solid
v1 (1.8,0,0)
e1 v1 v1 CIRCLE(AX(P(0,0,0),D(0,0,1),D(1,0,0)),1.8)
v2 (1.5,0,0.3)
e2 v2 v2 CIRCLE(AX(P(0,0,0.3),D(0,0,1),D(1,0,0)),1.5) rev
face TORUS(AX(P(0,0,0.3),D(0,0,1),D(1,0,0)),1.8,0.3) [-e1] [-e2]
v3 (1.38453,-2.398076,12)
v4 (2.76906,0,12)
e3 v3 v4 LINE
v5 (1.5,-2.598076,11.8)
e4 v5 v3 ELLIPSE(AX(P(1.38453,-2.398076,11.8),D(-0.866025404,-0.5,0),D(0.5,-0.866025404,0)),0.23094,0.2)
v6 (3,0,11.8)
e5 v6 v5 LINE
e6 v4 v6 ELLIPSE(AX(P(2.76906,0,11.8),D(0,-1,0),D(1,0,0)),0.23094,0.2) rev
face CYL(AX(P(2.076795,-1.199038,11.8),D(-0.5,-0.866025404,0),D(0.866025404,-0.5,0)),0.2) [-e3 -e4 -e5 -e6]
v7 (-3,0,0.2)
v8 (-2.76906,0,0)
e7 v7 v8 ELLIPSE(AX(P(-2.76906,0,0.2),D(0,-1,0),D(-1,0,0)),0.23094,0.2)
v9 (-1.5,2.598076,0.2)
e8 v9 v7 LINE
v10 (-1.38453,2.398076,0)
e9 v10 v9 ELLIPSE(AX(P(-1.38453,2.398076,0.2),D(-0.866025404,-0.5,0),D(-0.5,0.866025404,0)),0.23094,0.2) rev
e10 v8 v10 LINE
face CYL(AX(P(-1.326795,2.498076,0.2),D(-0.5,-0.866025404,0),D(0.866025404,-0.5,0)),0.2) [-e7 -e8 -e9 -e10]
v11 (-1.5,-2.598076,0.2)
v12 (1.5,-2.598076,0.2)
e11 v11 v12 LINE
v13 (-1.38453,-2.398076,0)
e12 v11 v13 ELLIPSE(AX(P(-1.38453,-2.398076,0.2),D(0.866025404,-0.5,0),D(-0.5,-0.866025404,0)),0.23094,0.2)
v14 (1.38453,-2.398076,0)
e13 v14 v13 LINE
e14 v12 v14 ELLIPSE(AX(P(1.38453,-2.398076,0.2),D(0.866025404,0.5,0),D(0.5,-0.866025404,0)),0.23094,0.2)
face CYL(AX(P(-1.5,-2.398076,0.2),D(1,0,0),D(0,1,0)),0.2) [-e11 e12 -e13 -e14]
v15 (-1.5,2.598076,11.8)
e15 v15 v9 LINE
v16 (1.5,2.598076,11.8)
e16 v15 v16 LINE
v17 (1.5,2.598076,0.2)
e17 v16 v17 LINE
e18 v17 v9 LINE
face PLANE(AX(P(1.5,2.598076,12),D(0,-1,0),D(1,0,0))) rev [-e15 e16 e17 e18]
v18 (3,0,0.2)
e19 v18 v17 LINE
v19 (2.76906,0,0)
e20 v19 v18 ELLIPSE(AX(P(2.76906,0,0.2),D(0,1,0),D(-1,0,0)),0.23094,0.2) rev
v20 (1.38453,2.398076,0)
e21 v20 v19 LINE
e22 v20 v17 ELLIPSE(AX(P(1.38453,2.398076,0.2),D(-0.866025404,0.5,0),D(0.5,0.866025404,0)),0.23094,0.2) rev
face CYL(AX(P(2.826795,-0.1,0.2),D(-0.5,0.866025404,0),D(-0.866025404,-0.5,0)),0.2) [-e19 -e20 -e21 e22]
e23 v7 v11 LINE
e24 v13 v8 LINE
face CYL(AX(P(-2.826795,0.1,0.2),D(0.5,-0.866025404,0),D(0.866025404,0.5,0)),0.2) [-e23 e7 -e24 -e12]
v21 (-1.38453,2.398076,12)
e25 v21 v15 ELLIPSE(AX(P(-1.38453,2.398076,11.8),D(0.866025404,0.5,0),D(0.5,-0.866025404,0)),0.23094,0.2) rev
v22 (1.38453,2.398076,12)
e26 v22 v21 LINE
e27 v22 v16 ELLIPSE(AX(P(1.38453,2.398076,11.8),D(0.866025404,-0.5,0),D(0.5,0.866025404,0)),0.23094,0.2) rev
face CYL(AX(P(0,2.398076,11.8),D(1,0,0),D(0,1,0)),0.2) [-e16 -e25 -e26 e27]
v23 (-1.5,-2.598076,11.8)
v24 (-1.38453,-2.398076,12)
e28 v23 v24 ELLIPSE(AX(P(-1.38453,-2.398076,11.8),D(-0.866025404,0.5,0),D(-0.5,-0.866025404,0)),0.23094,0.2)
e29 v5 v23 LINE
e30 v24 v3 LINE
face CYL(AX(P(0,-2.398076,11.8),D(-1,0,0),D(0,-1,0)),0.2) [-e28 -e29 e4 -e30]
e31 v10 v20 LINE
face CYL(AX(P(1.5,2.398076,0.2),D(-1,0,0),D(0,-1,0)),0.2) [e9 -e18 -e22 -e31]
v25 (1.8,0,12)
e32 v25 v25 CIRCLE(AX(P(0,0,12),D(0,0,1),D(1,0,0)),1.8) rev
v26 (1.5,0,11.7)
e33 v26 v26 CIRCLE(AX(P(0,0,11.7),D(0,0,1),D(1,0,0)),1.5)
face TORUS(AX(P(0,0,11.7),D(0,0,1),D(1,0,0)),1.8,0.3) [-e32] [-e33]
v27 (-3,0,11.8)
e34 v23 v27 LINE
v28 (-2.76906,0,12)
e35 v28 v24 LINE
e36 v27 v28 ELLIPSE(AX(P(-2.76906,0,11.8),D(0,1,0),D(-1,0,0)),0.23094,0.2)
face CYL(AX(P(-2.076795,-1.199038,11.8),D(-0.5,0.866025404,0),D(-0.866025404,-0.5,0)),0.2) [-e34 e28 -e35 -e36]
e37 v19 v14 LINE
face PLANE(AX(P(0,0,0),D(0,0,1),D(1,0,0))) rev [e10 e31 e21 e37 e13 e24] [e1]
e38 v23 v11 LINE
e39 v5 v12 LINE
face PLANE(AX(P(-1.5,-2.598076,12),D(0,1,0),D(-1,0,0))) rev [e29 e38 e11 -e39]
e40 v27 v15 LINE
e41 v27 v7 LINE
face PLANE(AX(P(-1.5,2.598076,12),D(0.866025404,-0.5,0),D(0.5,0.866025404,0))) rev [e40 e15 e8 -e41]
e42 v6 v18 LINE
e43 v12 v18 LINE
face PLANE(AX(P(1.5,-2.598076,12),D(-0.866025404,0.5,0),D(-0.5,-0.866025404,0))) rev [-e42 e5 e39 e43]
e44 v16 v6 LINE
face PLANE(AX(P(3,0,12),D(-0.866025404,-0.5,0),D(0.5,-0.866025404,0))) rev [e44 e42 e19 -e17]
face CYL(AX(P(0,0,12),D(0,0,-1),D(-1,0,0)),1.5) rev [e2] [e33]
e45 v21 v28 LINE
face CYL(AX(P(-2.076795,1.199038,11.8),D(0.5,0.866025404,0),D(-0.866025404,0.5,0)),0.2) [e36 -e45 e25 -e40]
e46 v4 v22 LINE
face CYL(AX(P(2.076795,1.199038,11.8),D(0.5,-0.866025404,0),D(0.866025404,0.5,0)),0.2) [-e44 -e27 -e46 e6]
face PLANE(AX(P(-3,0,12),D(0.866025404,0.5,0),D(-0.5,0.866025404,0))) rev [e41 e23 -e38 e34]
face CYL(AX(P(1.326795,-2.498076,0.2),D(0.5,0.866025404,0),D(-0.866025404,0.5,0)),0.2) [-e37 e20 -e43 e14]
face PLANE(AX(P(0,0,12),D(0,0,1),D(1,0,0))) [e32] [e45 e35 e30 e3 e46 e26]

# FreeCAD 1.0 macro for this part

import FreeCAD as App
import Part
import Sketcher
from FreeCAD import Vector
Q = App.Units.Quantity


def edges_at(feature, points):
    """Names of the edges that pass closest to the given points."""
    edges = feature.Shape.Edges
    near = lambda p: min(range(len(edges)), key=lambda i: edges[i].distToShape(Part.Vertex(*p))[0])
    return sorted({f"Edge{near(p) + 1}" for p in points})

doc = App.newDocument("Part")
params = doc.addObject("Spreadsheet::Sheet", "Params")
for row, (alias, value) in enumerate([
    ("sketch1_diameter", "3 mm"),
    ("sketch1_width", "3 mm"),
    ("sketch1_length", "3 mm"),
    ("pad1_length", "12 mm"),
    ("fillet_radius", "0.3 mm"),
    ("fillet2_radius", "0.2 mm"),
], start=1):
    params.set(f"A{row}", alias)
    params.set(f"B{row}", "=" + value)
    params.setAlias(f"B{row}", alias)

body = doc.addObject("PartDesign::Body", "Body")

# Sketch on XY plane
sketch1 = doc.addObject("Sketcher::SketchObject", "Sketch")
body.addObject(sketch1)
sketch1.AttachmentSupport = (doc.XY_Plane, [""])
sketch1.MapMode = "FlatFace"
sketch1.addGeometry(Part.LineSegment(Vector(3, 0, 0), Vector(1.5, 2.6, 0)), False)
sketch1.addGeometry(Part.LineSegment(Vector(1.5, 2.6, 0), Vector(-1.5, 2.6, 0)), False)
sketch1.addGeometry(Part.LineSegment(Vector(-1.5, 2.6, 0), Vector(-3, 0, 0)), False)
sketch1.addGeometry(Part.LineSegment(Vector(-3, 0, 0), Vector(-1.5, -2.6, 0)), False)
sketch1.addGeometry(Part.LineSegment(Vector(-1.5, -2.6, 0), Vector(1.5, -2.6, 0)), False)
sketch1.addGeometry(Part.LineSegment(Vector(1.5, -2.6, 0), Vector(3, 0, 0)), False)
sketch1.addGeometry(Part.Circle(Vector(0, 0, 0), Vector(0, 0, 1), 1.5), False)
sketch1.addConstraint(Sketcher.Constraint("Coincident", 0, 2, 1, 1))
sketch1.addConstraint(Sketcher.Constraint("Coincident", 1, 2, 2, 1))
sketch1.addConstraint(Sketcher.Constraint("Coincident", 2, 2, 3, 1))
sketch1.addConstraint(Sketcher.Constraint("Coincident", 3, 2, 4, 1))
sketch1.addConstraint(Sketcher.Constraint("Coincident", 4, 2, 5, 1))
sketch1.addConstraint(Sketcher.Constraint("Coincident", 5, 2, 0, 1))
sketch1.addConstraint(Sketcher.Constraint("Horizontal", 1))
sketch1.addConstraint(Sketcher.Constraint("Horizontal", 4))
sketch1.addConstraint(Sketcher.Constraint("Coincident", 6, 3, -1, 1))
sketch1.addConstraint(Sketcher.Constraint("Symmetric", 0, 2, 3, 2, -1, 1))
sketch1.addConstraint(Sketcher.Constraint("Symmetric", 2, 2, 5, 2, -1, 1))
sketch1.addConstraint(Sketcher.Constraint("PointOnObject", 2, 2, -1))
sketch1.addConstraint(Sketcher.Constraint("Parallel", 2, 5))
sketch1.addConstraint(Sketcher.Constraint("Vertical", 1, 2, 3, 2))
sketch1.addConstraint(Sketcher.Constraint("Diameter", 6, Q("3 mm")))
sketch1.addConstraint(Sketcher.Constraint("DistanceX", 1, 2, 1, 1, Q("3 mm")))
sketch1.addConstraint(Sketcher.Constraint("Angle", 0, Q("120 deg")))
sketch1.addConstraint(Sketcher.Constraint("Distance", 0, Q("3 mm")))
sketch1.setExpression("Constraints[14]", "Params.sketch1_diameter")
sketch1.setExpression("Constraints[15]", "Params.sketch1_width")
sketch1.setExpression("Constraints[17]", "Params.sketch1_length")
pad1 = doc.addObject("PartDesign::Pad", "Pad")
body.addObject(pad1)
pad1.Profile = sketch1
pad1.setExpression("Length", "Params.pad1_length")
doc.recompute()

fillet = doc.addObject("PartDesign::Fillet", "Fillet")
body.addObject(fillet)
fillet.Base = (pad1, edges_at(pad1, [(-1.5, 0, 0), (-1.5, 0, 12)]))
fillet.setExpression("Radius", "Params.fillet_radius")
doc.recompute()

fillet2 = doc.addObject("PartDesign::Fillet", "Fillet001")
body.addObject(fillet2)
fillet2.Base = (fillet, edges_at(fillet, [
    (0, 2.598, 12),
    (-2.25, 1.299, 12),
    (-2.25, -1.299, 12),
    (0, -2.598, 12),
    (2.25, -1.299, 12),
    (0, -2.598, 0),
    (-2.25, -1.299, 0),
    (-2.25, 1.299, 0),
    (2.25, 1.299, 12),
    (0, 2.598, 0),
    (2.25, 1.299, 0),
    (2.25, -1.299, 0),
]))
fillet2.setExpression("Radius", "Params.fillet2_radius")

doc.recompute()
